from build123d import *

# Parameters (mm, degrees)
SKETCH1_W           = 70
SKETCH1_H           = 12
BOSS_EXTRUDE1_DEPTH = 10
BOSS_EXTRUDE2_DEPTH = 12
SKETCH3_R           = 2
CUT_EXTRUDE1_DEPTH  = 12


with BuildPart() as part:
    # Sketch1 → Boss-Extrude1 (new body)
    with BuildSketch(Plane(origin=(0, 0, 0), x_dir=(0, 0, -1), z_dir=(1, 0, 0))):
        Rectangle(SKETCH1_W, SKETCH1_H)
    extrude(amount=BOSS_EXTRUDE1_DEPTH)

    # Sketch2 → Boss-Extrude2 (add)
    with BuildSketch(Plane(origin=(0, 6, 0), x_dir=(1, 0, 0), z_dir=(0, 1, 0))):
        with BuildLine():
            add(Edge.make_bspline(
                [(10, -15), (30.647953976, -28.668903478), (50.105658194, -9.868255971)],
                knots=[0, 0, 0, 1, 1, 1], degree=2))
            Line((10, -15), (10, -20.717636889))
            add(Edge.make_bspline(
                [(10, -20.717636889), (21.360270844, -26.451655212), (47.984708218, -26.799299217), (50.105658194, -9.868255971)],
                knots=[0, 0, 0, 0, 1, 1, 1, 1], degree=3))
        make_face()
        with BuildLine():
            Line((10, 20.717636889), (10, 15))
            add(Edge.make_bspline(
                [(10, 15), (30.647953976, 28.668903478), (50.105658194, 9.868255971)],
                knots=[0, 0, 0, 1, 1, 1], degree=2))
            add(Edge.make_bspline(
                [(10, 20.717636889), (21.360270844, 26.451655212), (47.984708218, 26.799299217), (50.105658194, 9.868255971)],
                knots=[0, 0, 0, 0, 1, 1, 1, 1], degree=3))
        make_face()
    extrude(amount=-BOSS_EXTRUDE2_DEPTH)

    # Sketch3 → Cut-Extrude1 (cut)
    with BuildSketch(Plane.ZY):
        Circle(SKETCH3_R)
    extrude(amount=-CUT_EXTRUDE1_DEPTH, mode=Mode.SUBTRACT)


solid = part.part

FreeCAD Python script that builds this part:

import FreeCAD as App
import Part
import Sketcher

V = App.Vector
Q = App.Units.Quantity

doc = App.newDocument("Part")
body = doc.addObject("PartDesign::Body", "Body")

sketch1 = doc.addObject("Sketcher::SketchObject", "Sketch")
body.addObject(sketch1)
sketch1.AttachmentSupport = (doc.YZ_Plane, [""])
sketch1.MapMode = "FlatFace"
sketch1.addGeometry(Part.LineSegment(V(6, 35, 0), V(-6, 35, 0)), False)
sketch1.addGeometry(Part.LineSegment(V(-6, 35, 0), V(-6, -35, 0)), False)
sketch1.addGeometry(Part.LineSegment(V(-6, -35, 0), V(6, -35, 0)), False)
sketch1.addGeometry(Part.LineSegment(V(6, -35, 0), V(6, 35, 0)), False)
sketch1.addConstraint(Sketcher.Constraint("Coincident", 0, 2, 1, 1))
sketch1.addConstraint(Sketcher.Constraint("Coincident", 1, 2, 2, 1))
sketch1.addConstraint(Sketcher.Constraint("Coincident", 2, 2, 3, 1))
sketch1.addConstraint(Sketcher.Constraint("Coincident", 3, 2, 0, 1))
sketch1.addConstraint(Sketcher.Constraint("Horizontal", 0))
sketch1.addConstraint(Sketcher.Constraint("Vertical", 1))
sketch1.addConstraint(Sketcher.Constraint("Horizontal", 2))
sketch1.addConstraint(Sketcher.Constraint("Vertical", 3))
sketch1.addConstraint(Sketcher.Constraint("Symmetric", 0, 2, 2, 2, -1, 1))
sketch1.addConstraint(Sketcher.Constraint("DistanceX", 0, 2, 0, 1, Q("12 mm")))
sketch1.addConstraint(Sketcher.Constraint("DistanceY", 1, 2, 1, 1, Q("70 mm")))
pad1 = doc.addObject("PartDesign::Pad", "Pad")
body.addObject(pad1)
pad1.Profile = sketch1
pad1.Length = 10

sketch2 = doc.addObject("Sketcher::SketchObject", "Sketch001")
body.addObject(sketch2)
sketch2.AttachmentSupport = (doc.XZ_Plane, [""])
sketch2.MapMode = "FlatFace"
sketch2.AttachmentOffset = App.Placement(V(0, 0, -6), App.Rotation())
sketch2.addGeometry(Part.BSplineCurve([V(10, 15, 0), V(30.647954, 28.668903, 0), V(50.105658, 9.868256, 0)], [3, 3], [0, 1], False, 2, [1, 1, 1], False), False)
sketch2.addGeometry(Part.LineSegment(V(10, 15, 0), V(10, 20.717637, 0)), False)
sketch2.addGeometry(Part.BSplineCurve([V(10, 20.717637, 0), V(21.360271, 26.451655, 0), V(47.984708, 26.799299, 0), V(50.105658, 9.868256, 0)], [4, 4], [0, 1], False, 3, [1, 1, 1, 1], False), False)
sketch2.addGeometry(Part.LineSegment(V(10, -20.717637, 0), V(10, -15, 0)), False)
sketch2.addGeometry(Part.BSplineCurve([V(10, -15, 0), V(30.647954, -28.668903, 0), V(50.105658, -9.868256, 0)], [3, 3], [0, 1], False, 2, [1, 1, 1], False), False)
sketch2.addGeometry(Part.BSplineCurve([V(10, -20.717637, 0), V(21.360271, -26.451655, 0), V(47.984708, -26.799299, 0), V(50.105658, -9.868256, 0)], [4, 4], [0, 1], False, 3, [1, 1, 1, 1], False), False)
sketch2.addConstraint(Sketcher.Constraint("Block", 0))
sketch2.addConstraint(Sketcher.Constraint("Block", 2))
sketch2.addConstraint(Sketcher.Constraint("Block", 4))
sketch2.addConstraint(Sketcher.Constraint("Block", 5))
sketch2.addConstraint(Sketcher.Constraint("Coincident", 0, 1, 1, 1))
sketch2.addConstraint(Sketcher.Constraint("Coincident", 1, 2, 2, 1))
sketch2.addConstraint(Sketcher.Constraint("Coincident", 3, 2, 4, 1))
sketch2.addConstraint(Sketcher.Constraint("Coincident", 5, 1, 3, 1))
pad2 = doc.addObject("PartDesign::Pad", "Pad001")
body.addObject(pad2)
pad2.Profile = sketch2
pad2.Length = 12

sketch3 = doc.addObject("Sketcher::SketchObject", "Sketch002")
body.addObject(sketch3)
sketch3.AttachmentSupport = (doc.YZ_Plane, [""])
sketch3.MapMode = "FlatFace"
sketch3.addGeometry(Part.Circle(V(0, 0, 0), V(0, 0, 1), 2), False)
sketch3.addConstraint(Sketcher.Constraint("Coincident", 0, 3, -1, 1))
sketch3.addConstraint(Sketcher.Constraint("Diameter", 0, Q("4 mm")))
pocket1 = doc.addObject("PartDesign::Pocket", "Pocket")
body.addObject(pocket1)
pocket1.Profile = sketch3
pocket1.Length = 12
pocket1.Reversed = True

doc.recompute()
